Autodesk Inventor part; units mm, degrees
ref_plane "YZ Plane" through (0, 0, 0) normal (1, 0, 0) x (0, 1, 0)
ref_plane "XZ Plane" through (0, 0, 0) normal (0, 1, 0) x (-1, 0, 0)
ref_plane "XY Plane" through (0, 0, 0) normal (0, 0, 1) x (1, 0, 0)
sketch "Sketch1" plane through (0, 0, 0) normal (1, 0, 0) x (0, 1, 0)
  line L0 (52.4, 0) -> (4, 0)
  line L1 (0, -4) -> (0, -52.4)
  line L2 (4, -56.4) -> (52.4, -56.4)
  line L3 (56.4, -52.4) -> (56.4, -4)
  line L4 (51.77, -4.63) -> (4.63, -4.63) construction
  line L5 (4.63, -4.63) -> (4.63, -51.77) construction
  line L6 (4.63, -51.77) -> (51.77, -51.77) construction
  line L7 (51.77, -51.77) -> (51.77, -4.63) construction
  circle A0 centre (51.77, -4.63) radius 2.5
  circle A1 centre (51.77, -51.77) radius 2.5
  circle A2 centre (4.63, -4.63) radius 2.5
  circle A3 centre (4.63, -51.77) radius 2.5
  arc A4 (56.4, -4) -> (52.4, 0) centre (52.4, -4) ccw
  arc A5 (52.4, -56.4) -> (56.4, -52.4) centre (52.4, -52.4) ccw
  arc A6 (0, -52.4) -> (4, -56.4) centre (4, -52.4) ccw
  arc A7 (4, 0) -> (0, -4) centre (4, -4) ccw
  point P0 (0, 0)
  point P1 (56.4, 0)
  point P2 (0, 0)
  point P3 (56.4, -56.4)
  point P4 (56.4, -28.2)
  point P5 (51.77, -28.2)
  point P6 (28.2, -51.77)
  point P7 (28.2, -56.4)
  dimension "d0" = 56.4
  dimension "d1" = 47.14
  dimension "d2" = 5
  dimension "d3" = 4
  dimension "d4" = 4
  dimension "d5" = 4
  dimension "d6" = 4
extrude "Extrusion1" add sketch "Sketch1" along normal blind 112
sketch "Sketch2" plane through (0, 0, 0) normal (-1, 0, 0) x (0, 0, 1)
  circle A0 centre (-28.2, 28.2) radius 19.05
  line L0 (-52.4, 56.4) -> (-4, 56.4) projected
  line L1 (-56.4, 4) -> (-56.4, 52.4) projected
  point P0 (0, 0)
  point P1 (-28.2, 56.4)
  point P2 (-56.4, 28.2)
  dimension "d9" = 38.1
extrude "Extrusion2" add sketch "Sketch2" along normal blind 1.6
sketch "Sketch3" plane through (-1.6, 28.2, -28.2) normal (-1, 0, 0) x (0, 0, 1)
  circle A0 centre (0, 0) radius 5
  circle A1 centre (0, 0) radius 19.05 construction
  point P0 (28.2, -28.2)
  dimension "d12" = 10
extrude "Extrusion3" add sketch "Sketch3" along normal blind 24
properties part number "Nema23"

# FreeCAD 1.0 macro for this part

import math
import FreeCAD as App
import Part
import Sketcher

V = App.Vector

doc = App.newDocument("Part")
body = doc.addObject("PartDesign::Body", "Body")

# Sketch on YZ plane
sketch1 = doc.addObject("Sketcher::SketchObject", "Sketch")
body.addObject(sketch1)
sketch1.AttachmentSupport = (doc.YZ_Plane, [""])
sketch1.MapMode = "FlatFace"
sketch1.addGeometry([
    Part.ArcOfCircle(Part.Circle(V(52.4, -4, 0), V(0, 0, 1), 4), math.radians(0), math.radians(90)),  # 0
    Part.LineSegment(V(52.4, 0, 0), V(4, 0, 0)),  # 1
    Part.ArcOfCircle(Part.Circle(V(4, -4, 0), V(0, 0, 1), 4), math.radians(90), math.radians(180)),  # 2
    Part.LineSegment(V(0, -4, 0), V(0, -52.4, 0)),  # 3
    Part.ArcOfCircle(Part.Circle(V(4, -52.4, 0), V(0, 0, 1), 4), math.radians(180), math.radians(270)),  # 4
    Part.LineSegment(V(4, -56.4, 0), V(52.4, -56.4, 0)),  # 5
    Part.ArcOfCircle(Part.Circle(V(52.4, -52.4, 0), V(0, 0, 1), 4), math.radians(-90), math.radians(0)),  # 6
    Part.LineSegment(V(56.4, -52.4, 0), V(56.4, -4, 0)),  # 7
    Part.Circle(V(4.6, -51.8, 0), V(0, 0, 1), 2.5),  # 8
    Part.Circle(V(51.8, -51.8, 0), V(0, 0, 1), 2.5),  # 9
    Part.Circle(V(4.6, -4.6, 0), V(0, 0, 1), 2.5),  # 10
    Part.Circle(V(51.8, -4.6, 0), V(0, 0, 1), 2.5),  # 11
], False)
sketch1.addConstraint([
    Sketcher.Constraint("Tangent", 0, 2, 1, 1),
    Sketcher.Constraint("Tangent", 1, 2, 2, 1),
    Sketcher.Constraint("Tangent", 2, 2, 3, 1),
    Sketcher.Constraint("Tangent", 3, 2, 4, 1),
    Sketcher.Constraint("Tangent", 4, 2, 5, 1),
    Sketcher.Constraint("Tangent", 5, 2, 6, 1),
    Sketcher.Constraint("Tangent", 6, 2, 7, 1),
    Sketcher.Constraint("Tangent", 7, 2, 0, 1),
    Sketcher.Constraint("Horizontal", 1),
    Sketcher.Constraint("Vertical", 3),
    Sketcher.Constraint("Horizontal", 5),
    Sketcher.Constraint("Vertical", 7),
    Sketcher.Constraint("Equal", 0, 2),
    Sketcher.Constraint("Equal", 2, 4),
    Sketcher.Constraint("Equal", 4, 6),
    Sketcher.Constraint("Equal", 8, 9),
    Sketcher.Constraint("Equal", 9, 10),
    Sketcher.Constraint("Equal", 10, 11),
    Sketcher.Constraint("PointOnObject", 0, 2, -1),
    Sketcher.Constraint("PointOnObject", 2, 2, -2),
    Sketcher.Constraint("Horizontal", 8, 3, 9, 3),
    Sketcher.Constraint("Horizontal", 10, 3, 11, 3),
    Sketcher.Constraint("Vertical", 8, 3, 10, 3),
    Sketcher.Constraint("Vertical", 9, 3, 11, 3),
    Sketcher.Constraint("Equal", 5, 3),
    Sketcher.Constraint("Diameter", 8, 5.0),
    Sketcher.Constraint("Radius", 0, 4.0),
    Sketcher.Constraint("DistanceY", 4, 2, -1, 1, 56.4),
    Sketcher.Constraint("DistanceX", 8, 3, 9, 3, 47.14),
    Sketcher.Constraint("DistanceY", 8, 3, 10, 3, 47.14),
    Sketcher.Constraint("DistanceX", -1, 1, 8, 3, 4.63),
    Sketcher.Constraint("DistanceY", 8, 3, -1, 1, 51.77),
])
pad1 = doc.addObject("PartDesign::Pad", "Pad")
body.addObject(pad1)
pad1.Profile = sketch1
pad1.Length = 112

# Sketch on YZ plane
sketch2 = doc.addObject("Sketcher::SketchObject", "Sketch001")
body.addObject(sketch2)
sketch2.AttachmentSupport = (doc.YZ_Plane, [""])
sketch2.MapMode = "FlatFace"
sketch2.addGeometry(Part.Circle(V(28, -28, 0), V(0, 0, 1), 19), False)
sketch2.addConstraint([
    Sketcher.Constraint("Diameter", 0, 38.1),
    Sketcher.Constraint("DistanceX", -1, 1, 0, 3, 28.2),
    Sketcher.Constraint("DistanceY", 0, 3, -1, 1, 28.2),
])
pad2 = doc.addObject("PartDesign::Pad", "Pad001")
body.addObject(pad2)
pad2.Profile = sketch2
pad2.Length = 1.6
pad2.Reversed = True

# Sketch on YZ plane
sketch3 = doc.addObject("Sketcher::SketchObject", "Sketch002")
body.addObject(sketch3)
sketch3.AttachmentSupport = (doc.YZ_Plane, [""])
sketch3.MapMode = "FlatFace"
sketch3.AttachmentOffset = App.Placement(V(0, 0, -1.6), App.Rotation())
sketch3.addGeometry(Part.Circle(V(28, -28, 0), V(0, 0, 1), 5), False)
sketch3.addConstraint([
    Sketcher.Constraint("Diameter", 0, 10.0),
    Sketcher.Constraint("DistanceX", -1, 1, 0, 3, 28.2),
    Sketcher.Constraint("DistanceY", 0, 3, -1, 1, 28.2),
])
pad3 = doc.addObject("PartDesign::Pad", "Pad002")
body.addObject(pad3)
pad3.Profile = sketch3
pad3.Length = 24
pad3.Reversed = True

doc.recompute()
